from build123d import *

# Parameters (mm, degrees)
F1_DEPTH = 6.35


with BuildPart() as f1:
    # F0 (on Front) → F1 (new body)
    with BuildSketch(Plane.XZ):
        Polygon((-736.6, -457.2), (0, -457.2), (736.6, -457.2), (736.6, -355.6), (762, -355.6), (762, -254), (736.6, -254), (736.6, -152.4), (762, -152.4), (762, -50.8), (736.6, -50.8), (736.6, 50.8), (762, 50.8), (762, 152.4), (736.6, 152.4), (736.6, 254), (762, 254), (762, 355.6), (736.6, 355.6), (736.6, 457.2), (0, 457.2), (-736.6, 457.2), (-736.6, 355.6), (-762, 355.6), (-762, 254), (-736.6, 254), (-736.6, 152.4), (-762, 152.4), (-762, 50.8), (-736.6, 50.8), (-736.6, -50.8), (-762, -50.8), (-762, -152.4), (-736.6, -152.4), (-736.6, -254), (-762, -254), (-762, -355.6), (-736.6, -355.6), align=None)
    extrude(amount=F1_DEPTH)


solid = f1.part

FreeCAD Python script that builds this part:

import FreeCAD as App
import Part
import Sketcher
Q = App.Units.Quantity

doc = App.newDocument("Part")
body = doc.addObject("PartDesign::Body", "Body")

# Sketch on XZ plane
sketch1 = body.newObject("Sketcher::SketchObject", "Sketch")
sketch1.AttachmentSupport = (doc.getObject("XZ_Plane"), [""])
sketch1.MapMode = "FlatFace"
sketch1.addGeometry([
    Part.LineSegment(App.Vector(-737, -457, 0), App.Vector(737, -457, 0)),  # 0
    Part.LineSegment(App.Vector(737, -457, 0), App.Vector(737, -356, 0)),  # 1
    Part.LineSegment(App.Vector(737, -356, 0), App.Vector(762, -356, 0)),  # 2
    Part.LineSegment(App.Vector(762, -356, 0), App.Vector(762, -254, 0)),  # 3
    Part.LineSegment(App.Vector(762, -254, 0), App.Vector(737, -254, 0)),  # 4
    Part.LineSegment(App.Vector(737, -254, 0), App.Vector(737, -152, 0)),  # 5
    Part.LineSegment(App.Vector(737, -152, 0), App.Vector(762, -152, 0)),  # 6
    Part.LineSegment(App.Vector(762, -152, 0), App.Vector(762, -51, 0)),  # 7
    Part.LineSegment(App.Vector(762, -51, 0), App.Vector(737, -51, 0)),  # 8
    Part.LineSegment(App.Vector(737, -51, 0), App.Vector(737, 51, 0)),  # 9
    Part.LineSegment(App.Vector(737, 51, 0), App.Vector(762, 51, 0)),  # 10
    Part.LineSegment(App.Vector(762, 51, 0), App.Vector(762, 152, 0)),  # 11
    Part.LineSegment(App.Vector(762, 152, 0), App.Vector(737, 152, 0)),  # 12
    Part.LineSegment(App.Vector(737, 152, 0), App.Vector(737, 254, 0)),  # 13
    Part.LineSegment(App.Vector(737, 254, 0), App.Vector(762, 254, 0)),  # 14
    Part.LineSegment(App.Vector(762, 254, 0), App.Vector(762, 356, 0)),  # 15
    Part.LineSegment(App.Vector(762, 356, 0), App.Vector(737, 356, 0)),  # 16
    Part.LineSegment(App.Vector(737, 356, 0), App.Vector(737, 457, 0)),  # 17
    Part.LineSegment(App.Vector(737, 457, 0), App.Vector(-737, 457, 0)),  # 18
    Part.LineSegment(App.Vector(-737, 457, 0), App.Vector(-737, 356, 0)),  # 19
    Part.LineSegment(App.Vector(-737, 356, 0), App.Vector(-762, 356, 0)),  # 20
    Part.LineSegment(App.Vector(-762, 356, 0), App.Vector(-762, 254, 0)),  # 21
    Part.LineSegment(App.Vector(-762, 254, 0), App.Vector(-737, 254, 0)),  # 22
    Part.LineSegment(App.Vector(-737, 254, 0), App.Vector(-737, 152, 0)),  # 23
    Part.LineSegment(App.Vector(-737, 152, 0), App.Vector(-762, 152, 0)),  # 24
    Part.LineSegment(App.Vector(-762, 152, 0), App.Vector(-762, 51, 0)),  # 25
    Part.LineSegment(App.Vector(-762, 51, 0), App.Vector(-737, 51, 0)),  # 26
    Part.LineSegment(App.Vector(-737, 51, 0), App.Vector(-737, -51, 0)),  # 27
    Part.LineSegment(App.Vector(-737, -51, 0), App.Vector(-762, -51, 0)),  # 28
    Part.LineSegment(App.Vector(-762, -51, 0), App.Vector(-762, -152, 0)),  # 29
    Part.LineSegment(App.Vector(-762, -152, 0), App.Vector(-737, -152, 0)),  # 30
    Part.LineSegment(App.Vector(-737, -152, 0), App.Vector(-737, -254, 0)),  # 31
    Part.LineSegment(App.Vector(-737, -254, 0), App.Vector(-762, -254, 0)),  # 32
    Part.LineSegment(App.Vector(-762, -254, 0), App.Vector(-762, -356, 0)),  # 33
    Part.LineSegment(App.Vector(-762, -356, 0), App.Vector(-737, -356, 0)),  # 34
    Part.LineSegment(App.Vector(-737, -356, 0), App.Vector(-737, -457, 0)),  # 35
], False)
sketch1.addConstraint([
    Sketcher.Constraint("Coincident", 0, 2, 1, 1),
    Sketcher.Constraint("Coincident", 1, 2, 2, 1),
    Sketcher.Constraint("Coincident", 2, 2, 3, 1),
    Sketcher.Constraint("Coincident", 3, 2, 4, 1),
    Sketcher.Constraint("Coincident", 4, 2, 5, 1),
    Sketcher.Constraint("Coincident", 5, 2, 6, 1),
    Sketcher.Constraint("Coincident", 6, 2, 7, 1),
    Sketcher.Constraint("Coincident", 7, 2, 8, 1),
    Sketcher.Constraint("Coincident", 8, 2, 9, 1),
    Sketcher.Constraint("Coincident", 9, 2, 10, 1),
    Sketcher.Constraint("Coincident", 10, 2, 11, 1),
    Sketcher.Constraint("Coincident", 11, 2, 12, 1),
    Sketcher.Constraint("Coincident", 12, 2, 13, 1),
    Sketcher.Constraint("Coincident", 13, 2, 14, 1),
    Sketcher.Constraint("Coincident", 14, 2, 15, 1),
    Sketcher.Constraint("Coincident", 15, 2, 16, 1),
    Sketcher.Constraint("Coincident", 16, 2, 17, 1),
    Sketcher.Constraint("Coincident", 17, 2, 18, 1),
    Sketcher.Constraint("Coincident", 18, 2, 19, 1),
    Sketcher.Constraint("Coincident", 19, 2, 20, 1),
    Sketcher.Constraint("Coincident", 20, 2, 21, 1),
    Sketcher.Constraint("Coincident", 21, 2, 22, 1),
    Sketcher.Constraint("Coincident", 22, 2, 23, 1),
    Sketcher.Constraint("Coincident", 23, 2, 24, 1),
    Sketcher.Constraint("Coincident", 24, 2, 25, 1),
    Sketcher.Constraint("Coincident", 25, 2, 26, 1),
    Sketcher.Constraint("Coincident", 26, 2, 27, 1),
    Sketcher.Constraint("Coincident", 27, 2, 28, 1),
    Sketcher.Constraint("Coincident", 28, 2, 29, 1),
    Sketcher.Constraint("Coincident", 29, 2, 30, 1),
    Sketcher.Constraint("Coincident", 30, 2, 31, 1),
    Sketcher.Constraint("Coincident", 31, 2, 32, 1),
    Sketcher.Constraint("Coincident", 32, 2, 33, 1),
    Sketcher.Constraint("Coincident", 33, 2, 34, 1),
    Sketcher.Constraint("Coincident", 34, 2, 35, 1),
    Sketcher.Constraint("Coincident", 35, 2, 0, 1),
    Sketcher.Constraint("Horizontal", 0),
    Sketcher.Constraint("Vertical", 1),
    Sketcher.Constraint("Horizontal", 2),
    Sketcher.Constraint("Vertical", 3),
    Sketcher.Constraint("Horizontal", 4),
    Sketcher.Constraint("Vertical", 5),
    Sketcher.Constraint("Horizontal", 6),
    Sketcher.Constraint("Vertical", 7),
    Sketcher.Constraint("Horizontal", 8),
    Sketcher.Constraint("Vertical", 9),
    Sketcher.Constraint("Horizontal", 10),
    Sketcher.Constraint("Vertical", 11),
    Sketcher.Constraint("Horizontal", 12),
    Sketcher.Constraint("Vertical", 13),
    Sketcher.Constraint("Horizontal", 14),
    Sketcher.Constraint("Vertical", 15),
    Sketcher.Constraint("Horizontal", 16),
    Sketcher.Constraint("Vertical", 17),
    Sketcher.Constraint("Horizontal", 18),
    Sketcher.Constraint("Vertical", 19),
    Sketcher.Constraint("Horizontal", 20),
    Sketcher.Constraint("Vertical", 21),
    Sketcher.Constraint("Horizontal", 22),
    Sketcher.Constraint("Vertical", 23),
    Sketcher.Constraint("Horizontal", 24),
    Sketcher.Constraint("Vertical", 25),
    Sketcher.Constraint("Horizontal", 26),
    Sketcher.Constraint("Vertical", 27),
    Sketcher.Constraint("Horizontal", 28),
    Sketcher.Constraint("Vertical", 29),
    Sketcher.Constraint("Horizontal", 30),
    Sketcher.Constraint("Vertical", 31),
    Sketcher.Constraint("Horizontal", 32),
    Sketcher.Constraint("Vertical", 33),
    Sketcher.Constraint("Horizontal", 34),
    Sketcher.Constraint("Vertical", 35),
    Sketcher.Constraint("Symmetric", 0, 2, 18, 2, -1, 1),
    Sketcher.Constraint("Symmetric", 2, 2, 20, 2, -1, 1),
    Sketcher.Constraint("Symmetric", 4, 2, 22, 2, -1, 1),
    Sketcher.Constraint("Symmetric", 6, 2, 24, 2, -1, 1),
    Sketcher.Constraint("Symmetric", 8, 2, 26, 2, -1, 1),
    Sketcher.Constraint("Symmetric", 10, 2, 28, 2, -1, 1),
    Sketcher.Constraint("Symmetric", 12, 2, 30, 2, -1, 1),
    Sketcher.Constraint("Symmetric", 14, 2, 32, 2, -1, 1),
    Sketcher.Constraint("Symmetric", 16, 2, 34, 2, -1, 1),
    Sketcher.Constraint("Symmetric", 16, 2, 19, 2, -2),
    Sketcher.Constraint("Symmetric", 14, 2, 21, 2, -2),
    Sketcher.Constraint("Symmetric", 12, 2, 23, 2, -2),
    Sketcher.Constraint("Symmetric", 10, 2, 25, 2, -2),
    Sketcher.Constraint("Vertical", 1, 2, 4, 2),
    Sketcher.Constraint("Vertical", 3, 2, 6, 2),
    Sketcher.Constraint("Vertical", 5, 2, 8, 2),
    Sketcher.Constraint("Equal", 1, 3),
    Sketcher.Constraint("Equal", 3, 5),
    Sketcher.Constraint("Equal", 5, 7),
    Sketcher.Constraint("Equal", 7, 9),
    Sketcher.Constraint("DistanceX", 0, 1, 0, 2, Q("58 in")),
    Sketcher.Constraint("DistanceX", 2, 1, 2, 2, Q("1 in")),
    Sketcher.Constraint("DistanceY", 1, 1, 1, 2, Q("4 in")),
])
pad1 = body.newObject("PartDesign::Pad", "Pad")
pad1.Profile = sketch1
pad1.Length = Q("0.25 in")

doc.recompute()
